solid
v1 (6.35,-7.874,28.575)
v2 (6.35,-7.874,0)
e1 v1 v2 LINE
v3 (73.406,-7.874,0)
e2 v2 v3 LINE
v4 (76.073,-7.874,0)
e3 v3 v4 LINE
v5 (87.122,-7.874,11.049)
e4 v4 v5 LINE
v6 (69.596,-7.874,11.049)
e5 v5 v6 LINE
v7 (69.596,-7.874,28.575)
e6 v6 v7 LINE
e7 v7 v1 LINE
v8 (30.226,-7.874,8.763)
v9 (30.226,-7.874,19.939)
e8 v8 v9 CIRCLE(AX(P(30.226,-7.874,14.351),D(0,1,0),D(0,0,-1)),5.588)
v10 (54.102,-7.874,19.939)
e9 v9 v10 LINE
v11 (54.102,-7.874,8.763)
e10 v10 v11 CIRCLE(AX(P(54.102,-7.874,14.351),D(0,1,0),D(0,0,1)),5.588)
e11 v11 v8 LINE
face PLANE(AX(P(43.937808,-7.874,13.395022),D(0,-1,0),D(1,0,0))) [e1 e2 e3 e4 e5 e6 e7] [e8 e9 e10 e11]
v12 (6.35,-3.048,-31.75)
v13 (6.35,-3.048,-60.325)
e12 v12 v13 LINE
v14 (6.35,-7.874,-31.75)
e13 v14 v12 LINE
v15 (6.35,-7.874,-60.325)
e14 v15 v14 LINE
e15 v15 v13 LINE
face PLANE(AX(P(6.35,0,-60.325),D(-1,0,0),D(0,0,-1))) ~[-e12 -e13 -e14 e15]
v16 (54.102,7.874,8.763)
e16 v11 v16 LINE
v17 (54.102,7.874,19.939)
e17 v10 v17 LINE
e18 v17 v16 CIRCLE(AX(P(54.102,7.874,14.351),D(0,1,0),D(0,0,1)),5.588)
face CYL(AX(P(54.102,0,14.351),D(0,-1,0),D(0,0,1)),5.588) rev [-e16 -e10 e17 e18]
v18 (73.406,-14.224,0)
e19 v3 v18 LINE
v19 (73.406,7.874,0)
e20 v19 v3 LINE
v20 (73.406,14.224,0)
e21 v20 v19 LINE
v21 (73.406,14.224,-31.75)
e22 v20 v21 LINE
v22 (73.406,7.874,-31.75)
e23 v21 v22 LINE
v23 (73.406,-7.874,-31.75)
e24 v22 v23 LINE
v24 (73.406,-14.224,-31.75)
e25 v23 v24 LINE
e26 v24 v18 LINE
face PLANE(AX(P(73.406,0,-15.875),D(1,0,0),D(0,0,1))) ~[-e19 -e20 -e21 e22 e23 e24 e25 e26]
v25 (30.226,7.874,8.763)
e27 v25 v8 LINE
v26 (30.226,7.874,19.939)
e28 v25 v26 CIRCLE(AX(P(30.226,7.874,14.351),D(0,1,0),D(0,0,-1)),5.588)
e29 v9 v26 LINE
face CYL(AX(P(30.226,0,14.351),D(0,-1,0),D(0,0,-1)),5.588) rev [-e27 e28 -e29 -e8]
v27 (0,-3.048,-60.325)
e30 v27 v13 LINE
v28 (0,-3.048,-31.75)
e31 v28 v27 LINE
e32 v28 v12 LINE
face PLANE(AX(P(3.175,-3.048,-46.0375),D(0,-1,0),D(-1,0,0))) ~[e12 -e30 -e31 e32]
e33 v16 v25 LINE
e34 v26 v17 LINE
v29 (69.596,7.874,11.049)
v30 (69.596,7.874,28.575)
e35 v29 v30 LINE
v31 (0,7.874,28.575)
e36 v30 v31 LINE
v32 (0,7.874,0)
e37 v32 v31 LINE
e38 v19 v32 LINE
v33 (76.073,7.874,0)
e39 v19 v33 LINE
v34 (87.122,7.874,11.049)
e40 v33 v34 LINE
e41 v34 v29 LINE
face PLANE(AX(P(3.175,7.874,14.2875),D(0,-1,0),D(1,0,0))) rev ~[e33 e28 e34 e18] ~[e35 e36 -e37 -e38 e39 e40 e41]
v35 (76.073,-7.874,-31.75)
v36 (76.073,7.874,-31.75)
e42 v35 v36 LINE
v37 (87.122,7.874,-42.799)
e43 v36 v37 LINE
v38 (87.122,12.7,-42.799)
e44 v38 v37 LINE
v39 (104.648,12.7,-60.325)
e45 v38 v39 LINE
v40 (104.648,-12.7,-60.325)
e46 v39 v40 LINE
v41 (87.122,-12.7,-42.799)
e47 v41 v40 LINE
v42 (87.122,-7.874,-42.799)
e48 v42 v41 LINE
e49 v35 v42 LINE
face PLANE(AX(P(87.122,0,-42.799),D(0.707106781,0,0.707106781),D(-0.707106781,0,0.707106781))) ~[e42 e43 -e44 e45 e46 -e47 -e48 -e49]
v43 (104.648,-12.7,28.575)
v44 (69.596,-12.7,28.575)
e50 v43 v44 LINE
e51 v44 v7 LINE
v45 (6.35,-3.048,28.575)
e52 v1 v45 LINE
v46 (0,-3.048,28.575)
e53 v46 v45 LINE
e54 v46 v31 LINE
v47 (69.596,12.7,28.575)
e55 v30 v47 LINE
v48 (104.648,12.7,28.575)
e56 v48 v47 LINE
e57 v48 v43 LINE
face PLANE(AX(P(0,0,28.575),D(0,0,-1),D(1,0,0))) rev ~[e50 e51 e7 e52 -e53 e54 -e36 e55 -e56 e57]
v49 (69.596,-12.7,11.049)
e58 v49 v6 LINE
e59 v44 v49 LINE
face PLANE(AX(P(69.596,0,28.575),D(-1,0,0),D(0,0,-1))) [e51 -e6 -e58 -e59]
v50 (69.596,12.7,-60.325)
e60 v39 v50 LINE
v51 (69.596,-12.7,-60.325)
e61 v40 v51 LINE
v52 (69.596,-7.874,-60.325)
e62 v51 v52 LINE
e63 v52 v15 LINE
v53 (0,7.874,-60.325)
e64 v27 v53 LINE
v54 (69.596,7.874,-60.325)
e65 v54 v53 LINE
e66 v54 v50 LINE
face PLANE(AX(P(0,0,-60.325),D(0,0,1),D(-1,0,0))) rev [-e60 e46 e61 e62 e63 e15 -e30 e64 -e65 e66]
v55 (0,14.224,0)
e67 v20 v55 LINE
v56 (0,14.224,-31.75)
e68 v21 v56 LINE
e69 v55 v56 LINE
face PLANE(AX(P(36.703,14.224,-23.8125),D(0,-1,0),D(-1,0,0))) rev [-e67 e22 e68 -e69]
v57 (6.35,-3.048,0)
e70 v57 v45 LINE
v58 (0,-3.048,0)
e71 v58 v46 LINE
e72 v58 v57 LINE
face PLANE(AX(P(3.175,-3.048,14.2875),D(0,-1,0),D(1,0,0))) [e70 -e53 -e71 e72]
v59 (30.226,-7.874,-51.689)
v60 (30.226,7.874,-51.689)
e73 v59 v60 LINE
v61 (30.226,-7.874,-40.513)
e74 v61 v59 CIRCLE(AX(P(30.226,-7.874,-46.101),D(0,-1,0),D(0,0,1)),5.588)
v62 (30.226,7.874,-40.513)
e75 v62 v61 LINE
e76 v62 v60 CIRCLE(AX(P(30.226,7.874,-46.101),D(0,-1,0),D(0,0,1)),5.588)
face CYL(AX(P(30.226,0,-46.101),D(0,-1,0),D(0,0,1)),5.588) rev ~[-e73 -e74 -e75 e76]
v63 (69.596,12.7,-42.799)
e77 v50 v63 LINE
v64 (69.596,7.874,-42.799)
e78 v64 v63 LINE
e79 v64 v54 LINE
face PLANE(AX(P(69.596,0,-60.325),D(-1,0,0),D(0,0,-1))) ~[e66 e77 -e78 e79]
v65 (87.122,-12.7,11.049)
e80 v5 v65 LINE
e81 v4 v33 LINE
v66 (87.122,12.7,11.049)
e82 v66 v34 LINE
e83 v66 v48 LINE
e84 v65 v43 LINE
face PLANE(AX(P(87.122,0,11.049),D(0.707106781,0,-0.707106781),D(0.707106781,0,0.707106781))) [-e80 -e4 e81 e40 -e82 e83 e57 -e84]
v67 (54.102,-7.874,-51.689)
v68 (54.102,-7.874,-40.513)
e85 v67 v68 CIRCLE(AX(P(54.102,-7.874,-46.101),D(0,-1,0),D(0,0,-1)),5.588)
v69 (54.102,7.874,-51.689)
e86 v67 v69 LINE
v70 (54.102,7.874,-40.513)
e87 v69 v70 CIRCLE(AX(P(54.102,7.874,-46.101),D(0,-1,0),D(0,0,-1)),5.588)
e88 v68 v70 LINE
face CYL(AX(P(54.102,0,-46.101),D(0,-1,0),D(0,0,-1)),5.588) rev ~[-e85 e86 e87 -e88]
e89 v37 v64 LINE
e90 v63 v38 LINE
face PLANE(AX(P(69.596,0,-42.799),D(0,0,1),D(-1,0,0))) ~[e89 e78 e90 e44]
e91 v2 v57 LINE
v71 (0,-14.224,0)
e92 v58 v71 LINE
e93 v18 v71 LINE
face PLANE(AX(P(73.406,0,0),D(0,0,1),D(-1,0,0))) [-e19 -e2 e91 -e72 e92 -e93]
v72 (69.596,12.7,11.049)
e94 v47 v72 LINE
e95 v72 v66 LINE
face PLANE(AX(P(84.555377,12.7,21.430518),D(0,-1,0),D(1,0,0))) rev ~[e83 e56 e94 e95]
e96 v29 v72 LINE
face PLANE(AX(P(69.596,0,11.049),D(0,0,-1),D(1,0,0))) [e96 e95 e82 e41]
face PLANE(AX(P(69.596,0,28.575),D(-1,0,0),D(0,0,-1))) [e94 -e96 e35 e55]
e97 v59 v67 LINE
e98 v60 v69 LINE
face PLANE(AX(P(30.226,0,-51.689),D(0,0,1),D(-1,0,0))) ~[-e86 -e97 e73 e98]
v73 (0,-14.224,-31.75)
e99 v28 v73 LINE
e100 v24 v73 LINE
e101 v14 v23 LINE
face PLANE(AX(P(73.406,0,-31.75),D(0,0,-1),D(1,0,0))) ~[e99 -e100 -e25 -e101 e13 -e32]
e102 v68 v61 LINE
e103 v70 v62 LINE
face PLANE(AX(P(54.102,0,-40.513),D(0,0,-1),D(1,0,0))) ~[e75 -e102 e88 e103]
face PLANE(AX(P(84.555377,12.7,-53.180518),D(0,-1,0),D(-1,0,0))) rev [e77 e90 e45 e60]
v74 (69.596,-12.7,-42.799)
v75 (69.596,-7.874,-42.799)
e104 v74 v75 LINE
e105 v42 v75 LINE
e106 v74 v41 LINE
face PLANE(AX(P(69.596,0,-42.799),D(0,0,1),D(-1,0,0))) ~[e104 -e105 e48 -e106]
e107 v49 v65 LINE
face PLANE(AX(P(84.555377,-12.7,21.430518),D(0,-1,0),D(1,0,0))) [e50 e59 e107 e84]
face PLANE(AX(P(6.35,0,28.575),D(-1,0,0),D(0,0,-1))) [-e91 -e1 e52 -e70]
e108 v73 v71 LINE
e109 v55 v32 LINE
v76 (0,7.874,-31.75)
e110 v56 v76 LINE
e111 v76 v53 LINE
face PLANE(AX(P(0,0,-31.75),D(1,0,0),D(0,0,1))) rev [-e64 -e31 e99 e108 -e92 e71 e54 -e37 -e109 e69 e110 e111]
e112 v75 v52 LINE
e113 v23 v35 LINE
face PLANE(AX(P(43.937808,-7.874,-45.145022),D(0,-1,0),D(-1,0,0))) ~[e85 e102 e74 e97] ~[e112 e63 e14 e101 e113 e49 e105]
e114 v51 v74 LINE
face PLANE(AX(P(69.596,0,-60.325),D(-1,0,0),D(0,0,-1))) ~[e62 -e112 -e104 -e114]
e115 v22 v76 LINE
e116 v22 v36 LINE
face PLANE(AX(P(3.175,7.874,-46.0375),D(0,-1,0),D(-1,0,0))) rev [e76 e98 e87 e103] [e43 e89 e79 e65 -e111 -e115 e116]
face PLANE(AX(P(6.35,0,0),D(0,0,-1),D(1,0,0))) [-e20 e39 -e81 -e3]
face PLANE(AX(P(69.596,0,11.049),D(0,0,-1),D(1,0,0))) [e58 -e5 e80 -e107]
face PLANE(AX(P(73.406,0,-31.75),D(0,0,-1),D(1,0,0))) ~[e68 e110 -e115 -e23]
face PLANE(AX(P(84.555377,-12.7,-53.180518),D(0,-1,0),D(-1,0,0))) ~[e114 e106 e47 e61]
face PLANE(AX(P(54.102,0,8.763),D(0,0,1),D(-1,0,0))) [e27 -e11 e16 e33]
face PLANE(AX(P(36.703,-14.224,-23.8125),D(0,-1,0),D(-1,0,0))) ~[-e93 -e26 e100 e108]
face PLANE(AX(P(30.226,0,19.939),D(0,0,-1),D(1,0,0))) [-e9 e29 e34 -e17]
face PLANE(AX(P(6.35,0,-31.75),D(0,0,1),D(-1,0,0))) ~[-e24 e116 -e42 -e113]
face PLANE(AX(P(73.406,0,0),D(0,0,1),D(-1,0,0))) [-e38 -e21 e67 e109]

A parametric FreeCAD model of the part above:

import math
import FreeCAD as App
import Part
import Sketcher

V = App.Vector
Q = App.Units.Quantity

doc = App.newDocument("Part")
params = doc.addObject("Spreadsheet::Sheet", "Params")
for row, (alias, value) in enumerate([
    ("sketch1_width", "2.89 in"),
    ("sketch1_height", "0.625 in"),
    ("pad1_length", "1.12 in"),
    ("sketch2_radius", "0.22 in"),
    ("sketch2_width", "0.69 in"),
    ("sketch2_width2", "2.49 in"),
    ("sketch2_width3", "0.94 in"),
    ("sketch2_width4", "2.745 in"),
    ("pad2_length", "0.62 in"),
    ("sketch3_width", "0.69 in"),
    ("pad3_length", "1 in"),
    ("sketch4_width", "0.25 in"),
    ("sketch4_height", "1.125 in"),
    ("pad4_length", "0.12 in"),
    ("pad4_length2", "0.31 in"),
], start=1):
    params.set(f"A{row}", alias)
    params.set(f"B{row}", "=" + value)
    params.setAlias(f"B{row}", alias)

body = doc.addObject("PartDesign::Body", "Body")

# Sketch on XZ plane
sketch1 = body.newObject("Sketcher::SketchObject", "Sketch")
sketch1.AttachmentSupport = (doc.getObject("XZ_Plane"), [""])
sketch1.MapMode = "FlatFace"
sketch1.addGeometry([
    Part.LineSegment(V(73, -16, 0), V(73, 0, 0)),
    Part.LineSegment(V(73, 0, 0), V(0, 0, 0)),
    Part.LineSegment(V(0, 0, 0), V(0, -16, 0)),
    Part.LineSegment(V(0, -16, 0), V(73, -16, 0)),
], False)
sketch1.addConstraint([
    Sketcher.Constraint("Coincident", 0, 2, 1, 1),
    Sketcher.Constraint("Coincident", 1, 2, 2, 1),
    Sketcher.Constraint("Coincident", 2, 2, 3, 1),
    Sketcher.Constraint("Coincident", 3, 2, 0, 1),
    Sketcher.Constraint("Vertical", 0),
    Sketcher.Constraint("Horizontal", 1),
    Sketcher.Constraint("Vertical", 2),
    Sketcher.Constraint("Horizontal", 3),
    Sketcher.Constraint("Coincident", 1, 2, -1, 1),
    Sketcher.Constraint("DistanceX", 1, 2, 1, 1, Q("2.89 in")),
    Sketcher.Constraint("DistanceY", 0, 1, 0, 2, Q("0.625 in")),
])
sketch1.setExpression("Constraints[9]", "Params.sketch1_width")
sketch1.setExpression("Constraints[10]", "Params.sketch1_height")
pad1 = body.newObject("PartDesign::Pad", "Pad")
pad1.Profile = sketch1
pad1.setExpression("Length", "Params.pad1_length")
pad1.Midplane = True

# Sketch on XZ plane
sketch2 = body.newObject("Sketcher::SketchObject", "Sketch001")
sketch2.AttachmentSupport = (doc.getObject("XZ_Plane"), [""])
sketch2.MapMode = "FlatFace"
sketch2.addGeometry([
    Part.LineSegment(V(76, 0, 0), V(87, 11, 0)),  # 0
    Part.LineSegment(V(87, 11, 0), V(70, 11, 0)),  # 1
    Part.LineSegment(V(70, 11, 0), V(70, 29, 0)),  # 2
    Part.LineSegment(V(70, 29, 0), V(6, 29, 0)),  # 3
    Part.LineSegment(V(6, 29, 0), V(6, 0, 0)),  # 4
    Part.LineSegment(V(6, 0, 0), V(76, 0, 0)),  # 5
    Part.LineSegment(V(54, 9, 0), V(30, 9, 0)),  # 6
    Part.ArcOfCircle(Part.Circle(V(30, 14, 0), V(0, 0, 1), 6), math.radians(90), math.radians(270)),  # 7
    Part.LineSegment(V(30, 20, 0), V(54, 20, 0)),  # 8
    Part.ArcOfCircle(Part.Circle(V(54, 14, 0), V(0, 0, 1), 6), math.radians(-90), math.radians(90)),  # 9
], False)
sketch2.addConstraint([
    Sketcher.Constraint("Coincident", 0, 2, 1, 1),
    Sketcher.Constraint("Coincident", 1, 2, 2, 1),
    Sketcher.Constraint("Coincident", 2, 2, 3, 1),
    Sketcher.Constraint("Coincident", 3, 2, 4, 1),
    Sketcher.Constraint("Coincident", 4, 2, 5, 1),
    Sketcher.Constraint("Coincident", 5, 2, 0, 1),
    Sketcher.Constraint("Tangent", 6, 2, 7, 2),
    Sketcher.Constraint("Tangent", 7, 1, 8, 1),
    Sketcher.Constraint("Tangent", 8, 2, 9, 2),
    Sketcher.Constraint("Tangent", 9, 1, 6, 1),
    Sketcher.Constraint("Horizontal", 1),
    Sketcher.Constraint("Vertical", 2),
    Sketcher.Constraint("Horizontal", 3),
    Sketcher.Constraint("Vertical", 4),
    Sketcher.Constraint("Horizontal", 5),
    Sketcher.Constraint("Horizontal", 6),
    Sketcher.Constraint("Horizontal", 8),
    Sketcher.Constraint("PointOnObject", 4, 2, -1),
    Sketcher.Constraint("Equal", 1, 2),
    Sketcher.Constraint("Radius", 7, Q("0.22 in")),
    Sketcher.Constraint("Angle", 0, Q("45 deg")),
    Sketcher.Constraint("DistanceX", 1, 2, 1, 1, Q("0.69 in")),
    Sketcher.Constraint("DistanceX", 3, 2, 3, 1, Q("2.49 in")),
    Sketcher.Constraint("DistanceX", 6, 2, 6, 1, Q("0.94 in")),
    Sketcher.Constraint("DistanceX", 9, 3, 0, 2, Q("1.3 in")),
    Sketcher.Constraint("DistanceX", 5, 1, 5, 2, Q("2.745 in")),
    Sketcher.Constraint("DistanceX", -1, 1, 7, 3, Q("1.19 in")),
    Sketcher.Constraint("DistanceY", 0, 2, 9, 3, Q("0.13 in")),
])
sketch2.setExpression("Constraints[19]", "Params.sketch2_radius")
sketch2.setExpression("Constraints[21]", "Params.sketch2_width")
sketch2.setExpression("Constraints[22]", "Params.sketch2_width2")
sketch2.setExpression("Constraints[23]", "Params.sketch2_width3")
sketch2.setExpression("Constraints[25]", "Params.sketch2_width4")
pad2 = body.newObject("PartDesign::Pad", "Pad001")
pad2.Profile = sketch2
pad2.setExpression("Length", "Params.pad2_length")
pad2.Midplane = True

# Sketch on XZ plane
sketch3 = body.newObject("Sketcher::SketchObject", "Sketch002")
sketch3.AttachmentSupport = (doc.getObject("XZ_Plane"), [""])
sketch3.MapMode = "FlatFace"
sketch3.addGeometry([
    Part.LineSegment(V(70, 11, 0), V(87, 11, 0)),
    Part.LineSegment(V(87, 11, 0), V(105, 29, 0)),
    Part.LineSegment(V(105, 29, 0), V(70, 29, 0)),
    Part.LineSegment(V(70, 29, 0), V(70, 11, 0)),
], False)
sketch3.addConstraint([
    Sketcher.Constraint("Coincident", 0, 2, 1, 1),
    Sketcher.Constraint("Coincident", 1, 2, 2, 1),
    Sketcher.Constraint("Coincident", 2, 2, 3, 1),
    Sketcher.Constraint("Coincident", 3, 2, 0, 1),
    Sketcher.Constraint("Horizontal", 0),
    Sketcher.Constraint("Horizontal", 2),
    Sketcher.Constraint("Vertical", 3),
    Sketcher.Constraint("Equal", 0, 3),
    Sketcher.Constraint("Angle", 1, Q("45 deg")),
    Sketcher.Constraint("DistanceX", 0, 1, 0, 2, Q("0.69 in")),
    Sketcher.Constraint("DistanceX", -1, 1, 0, 2, Q("3.43 in")),
    Sketcher.Constraint("DistanceY", -1, 1, 0, 2, Q("0.435 in")),
])
sketch3.setExpression("Constraints[9]", "Params.sketch3_width")
pad3 = body.newObject("PartDesign::Pad", "Pad002")
pad3.Profile = sketch3
pad3.setExpression("Length", "Params.pad3_length")
pad3.Midplane = True

# Sketch on XZ plane
sketch4 = body.newObject("Sketcher::SketchObject", "Sketch003")
sketch4.AttachmentSupport = (doc.getObject("XZ_Plane"), [""])
sketch4.MapMode = "FlatFace"
sketch4.addGeometry([
    Part.LineSegment(V(0, 29, 0), V(0, 0, 0)),
    Part.LineSegment(V(0, 0, 0), V(6, 0, 0)),
    Part.LineSegment(V(6, 0, 0), V(6, 29, 0)),
    Part.LineSegment(V(6, 29, 0), V(0, 29, 0)),
], False)
sketch4.addConstraint([
    Sketcher.Constraint("Coincident", 0, 2, 1, 1),
    Sketcher.Constraint("Coincident", 1, 2, 2, 1),
    Sketcher.Constraint("Coincident", 2, 2, 3, 1),
    Sketcher.Constraint("Coincident", 3, 2, 0, 1),
    Sketcher.Constraint("Vertical", 0),
    Sketcher.Constraint("Horizontal", 1),
    Sketcher.Constraint("Vertical", 2),
    Sketcher.Constraint("Horizontal", 3),
    Sketcher.Constraint("Coincident", 0, 2, -1, 1),
    Sketcher.Constraint("DistanceX", 1, 1, 1, 2, Q("0.25 in")),
    Sketcher.Constraint("DistanceY", 0, 2, 0, 1, Q("1.125 in")),
])
sketch4.setExpression("Constraints[9]", "Params.sketch4_width")
sketch4.setExpression("Constraints[10]", "Params.sketch4_height")
pad4 = body.newObject("PartDesign::Pad", "Pad003")
pad4.Profile = sketch4
pad4.Type = "TwoLengths"
pad4.setExpression("Length", "Params.pad4_length")
pad4.setExpression("Length2", "Params.pad4_length2")
body2 = doc.addObject("PartDesign::Body", "Body001")
doc.recompute()

body2.BaseFeature = body
doc.recompute()

mirroring = doc.addObject("Part::Mirroring", "Mirroring")
mirroring.Source = body
mirroring.Base = V(36.703, 0, -15.875)
mirroring.Normal = V(0, 0, -1)
body3 = doc.addObject("PartDesign::Body", "Body002")
body3.BaseFeature = mirroring
boolean = body2.newObject("PartDesign::Boolean", "Boolean")
boolean.Type = "Fuse"
boolean.addObjects([body3])
doc.recompute()
mirroring.Visibility = False

doc.recompute()
